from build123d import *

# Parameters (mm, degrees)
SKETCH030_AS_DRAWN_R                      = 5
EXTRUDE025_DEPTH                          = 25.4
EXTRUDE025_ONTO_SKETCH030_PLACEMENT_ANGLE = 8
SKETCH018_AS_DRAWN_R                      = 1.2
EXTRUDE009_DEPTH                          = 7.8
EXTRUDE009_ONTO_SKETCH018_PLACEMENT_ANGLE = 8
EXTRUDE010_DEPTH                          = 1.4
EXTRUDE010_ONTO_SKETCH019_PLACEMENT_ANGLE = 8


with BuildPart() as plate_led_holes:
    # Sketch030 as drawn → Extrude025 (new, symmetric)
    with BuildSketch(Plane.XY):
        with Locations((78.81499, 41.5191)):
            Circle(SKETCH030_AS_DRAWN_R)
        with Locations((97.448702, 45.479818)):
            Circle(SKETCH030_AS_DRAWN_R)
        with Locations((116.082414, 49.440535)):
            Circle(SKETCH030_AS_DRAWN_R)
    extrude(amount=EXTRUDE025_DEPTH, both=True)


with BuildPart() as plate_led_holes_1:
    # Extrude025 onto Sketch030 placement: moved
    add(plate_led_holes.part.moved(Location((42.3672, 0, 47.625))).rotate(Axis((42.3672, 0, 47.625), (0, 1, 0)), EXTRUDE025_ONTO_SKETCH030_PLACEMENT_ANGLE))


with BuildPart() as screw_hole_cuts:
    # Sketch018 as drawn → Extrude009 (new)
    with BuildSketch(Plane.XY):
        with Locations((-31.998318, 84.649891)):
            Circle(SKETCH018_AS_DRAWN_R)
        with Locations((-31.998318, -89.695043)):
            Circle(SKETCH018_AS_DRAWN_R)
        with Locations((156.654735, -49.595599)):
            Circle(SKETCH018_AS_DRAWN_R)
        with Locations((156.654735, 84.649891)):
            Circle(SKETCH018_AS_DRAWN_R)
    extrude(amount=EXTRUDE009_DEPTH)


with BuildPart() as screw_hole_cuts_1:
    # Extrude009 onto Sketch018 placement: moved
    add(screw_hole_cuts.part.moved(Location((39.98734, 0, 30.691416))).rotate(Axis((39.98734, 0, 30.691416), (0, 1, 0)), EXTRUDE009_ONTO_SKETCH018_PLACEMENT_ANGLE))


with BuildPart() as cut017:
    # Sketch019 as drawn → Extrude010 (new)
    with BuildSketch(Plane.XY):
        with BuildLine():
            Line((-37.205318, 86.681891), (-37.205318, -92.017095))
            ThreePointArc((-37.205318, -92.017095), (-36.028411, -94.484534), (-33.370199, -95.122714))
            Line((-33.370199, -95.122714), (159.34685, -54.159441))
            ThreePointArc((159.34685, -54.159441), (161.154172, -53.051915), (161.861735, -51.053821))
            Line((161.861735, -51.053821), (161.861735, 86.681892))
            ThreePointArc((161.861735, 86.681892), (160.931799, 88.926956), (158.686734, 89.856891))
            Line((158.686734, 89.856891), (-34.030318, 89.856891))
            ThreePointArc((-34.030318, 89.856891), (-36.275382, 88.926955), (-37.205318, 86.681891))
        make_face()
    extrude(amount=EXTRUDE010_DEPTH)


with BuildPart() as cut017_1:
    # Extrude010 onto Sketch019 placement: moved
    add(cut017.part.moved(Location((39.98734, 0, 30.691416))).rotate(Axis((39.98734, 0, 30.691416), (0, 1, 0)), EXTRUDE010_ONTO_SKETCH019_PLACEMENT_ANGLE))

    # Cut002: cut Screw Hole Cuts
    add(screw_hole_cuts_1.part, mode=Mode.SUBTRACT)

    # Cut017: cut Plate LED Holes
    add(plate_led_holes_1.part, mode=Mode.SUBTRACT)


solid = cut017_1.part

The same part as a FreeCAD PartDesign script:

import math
import FreeCAD as App
import Part
import Sketcher

V = App.Vector
Q = App.Units.Quantity

doc = App.newDocument("Part")
body = doc.addObject("PartDesign::Body", "Body")
body.AllowCompound = True

# Sketch on XY plane
sketch1 = body.newObject("Sketcher::SketchObject", "Sketch")
sketch1.AttachmentSupport = (doc.getObject("XY_Plane"), [""])
sketch1.MapMode = "FlatFace"
sketch1.addGeometry(Part.Circle(V(78.81499, 41.5191, 0), V(0, 0, 1), 5), False)
sketch1.addGeometry(Part.Circle(V(97.448702, 45.479818, 0), V(0, 0, 1), 5), False)
sketch1.addGeometry(Part.Circle(V(116.082414, 49.440535, 0), V(0, 0, 1), 5), False)
sketch1.addConstraint(Sketcher.Constraint("Equal", 0, 1))
sketch1.addConstraint(Sketcher.Constraint("Equal", 1, 2))
sketch1.addConstraint(Sketcher.Constraint("Diameter", 0, Q("10 mm")))
sketch1.addConstraint(Sketcher.Constraint("DistanceY", -1, 1, 0, 3, Q("41.5191 mm")))
sketch1.addConstraint(Sketcher.Constraint("DistanceX", -1, 1, 1, 3, Q("97.448702 mm")))
sketch1.addConstraint(Sketcher.Constraint("DistanceX", -1, 1, 0, 3, Q("78.81499 mm")))
sketch1.addConstraint(Sketcher.Constraint("DistanceY", -1, 1, 1, 3, Q("45.479818 mm")))
sketch1.addConstraint(Sketcher.Constraint("DistanceX", -1, 1, 2, 3, Q("116.082414 mm")))
sketch1.addConstraint(Sketcher.Constraint("DistanceY", -1, 1, 2, 3, Q("49.440535 mm")))
pad1 = body.newObject("PartDesign::Pad", "Pad")
pad1.Profile = sketch1
pad1.Length = 50.8
pad1.Midplane = True
body2 = doc.addObject("PartDesign::Body", "Body001")
body2.AllowCompound = True
doc.recompute()

body.Placement = App.Placement(V(42.3672, 0, 47.625), App.Rotation(V(0, 1, 0), 8))
boolean = body2.newObject("PartDesign::Boolean", "Boolean")
boolean.Type = "Fuse"
boolean.addObjects([body])
body3 = doc.addObject("PartDesign::Body", "Body002")
body3.AllowCompound = True

# Sketch on XY plane
sketch2 = body3.newObject("Sketcher::SketchObject", "Sketch001")
sketch2.AttachmentSupport = (doc.getObject("XY_Plane002"), [""])
sketch2.MapMode = "FlatFace"
sketch2.addGeometry(Part.Circle(V(-31.998318, 84.649891, 0), V(0, 0, 1), 1.2), False)
sketch2.addGeometry(Part.Circle(V(-31.998318, -89.695043, 0), V(0, 0, 1), 1.2), False)
sketch2.addGeometry(Part.Circle(V(156.654735, -49.595599, 0), V(0, 0, 1), 1.2), False)
sketch2.addGeometry(Part.Circle(V(156.654735, 84.649891, 0), V(0, 0, 1), 1.2), False)
sketch2.addConstraint(Sketcher.Constraint("Equal", 0, 1))
sketch2.addConstraint(Sketcher.Constraint("Equal", 1, 2))
sketch2.addConstraint(Sketcher.Constraint("Equal", 2, 3))
sketch2.addConstraint(Sketcher.Constraint("Horizontal", 0, 3, 3, 3))
sketch2.addConstraint(Sketcher.Constraint("Vertical", 0, 3, 1, 3))
sketch2.addConstraint(Sketcher.Constraint("Vertical", 2, 3, 3, 3))
sketch2.addConstraint(Sketcher.Constraint("Diameter", 0, Q("2.4 mm")))
sketch2.addConstraint(Sketcher.Constraint("DistanceY", 2, 3, -1, 1, Q("49.595599 mm")))
sketch2.addConstraint(Sketcher.Constraint("DistanceX", 0, 3, -1, 1, Q("31.998318 mm")))
sketch2.addConstraint(Sketcher.Constraint("DistanceY", -1, 1, 0, 3, Q("84.649891 mm")))
sketch2.addConstraint(Sketcher.Constraint("DistanceY", 1, 3, -1, 1, Q("89.695043 mm")))
sketch2.addConstraint(Sketcher.Constraint("DistanceX", -1, 1, 2, 3, Q("156.654735 mm")))
pad2 = body3.newObject("PartDesign::Pad", "Pad001")
pad2.Profile = sketch2
pad2.Length = 7.8
body4 = doc.addObject("PartDesign::Body", "Body003")
body4.AllowCompound = True
doc.recompute()

body3.Placement = App.Placement(V(39.98734, 0, 30.691416), App.Rotation(V(0, 1, 0), 8))
boolean2 = body4.newObject("PartDesign::Boolean", "Boolean001")
boolean2.Type = "Fuse"
boolean2.addObjects([body3])
body5 = doc.addObject("PartDesign::Body", "Body004")

# Sketch on XY plane
sketch3 = body5.newObject("Sketcher::SketchObject", "Sketch002")
sketch3.AttachmentSupport = (doc.getObject("XY_Plane004"), [""])
sketch3.MapMode = "FlatFace"
sketch3.addGeometry(Part.LineSegment(V(-37.205318, 86.681891, 0), V(-37.205318, -92.017095, 0)), False)
sketch3.addGeometry(Part.ArcOfCircle(Part.Circle(V(-34.030319, -92.017097, 0), V(0, 0, 1), 3.174999), math.radians(179.999968), math.radians(282.000017)), False)
sketch3.addGeometry(Part.LineSegment(V(-33.370199, -95.122714, 0), V(159.34685, -54.159441, 0)), False)
sketch3.addGeometry(Part.ArcOfCircle(Part.Circle(V(158.686734, -51.053821, 0), V(0, 0, 1), 3.175001), math.radians(-78.000073), math.radians(-0.000006)), False)
sketch3.addGeometry(Part.LineSegment(V(161.861735, -51.053821, 0), V(161.861735, 86.681892, 0)), False)
sketch3.addGeometry(Part.ArcOfCircle(Part.Circle(V(158.686737, 86.681893, 0), V(0, 0, 1), 3.174998), math.radians(-0.000011), math.radians(90.000047)), False)
sketch3.addGeometry(Part.LineSegment(V(158.686734, 89.856891, 0), V(-34.030318, 89.856891, 0)), False)
sketch3.addGeometry(Part.ArcOfCircle(Part.Circle(V(-34.030318, 86.681891, 0), V(0, 0, 1), 3.175), math.radians(90.000002), math.radians(179.999998)), False)
sketch3.addConstraint(Sketcher.Constraint("Tangent", 0, 2, 1, 1))
sketch3.addConstraint(Sketcher.Constraint("Tangent", 1, 2, 2, 1))
sketch3.addConstraint(Sketcher.Constraint("Tangent", 2, 2, 3, 1))
sketch3.addConstraint(Sketcher.Constraint("Tangent", 3, 2, 4, 1))
sketch3.addConstraint(Sketcher.Constraint("Tangent", 4, 2, 5, 1))
sketch3.addConstraint(Sketcher.Constraint("Tangent", 5, 2, 6, 1))
sketch3.addConstraint(Sketcher.Constraint("Tangent", 6, 2, 7, 1))
sketch3.addConstraint(Sketcher.Constraint("Tangent", 7, 2, 0, 1))
sketch3.addConstraint(Sketcher.Constraint("Vertical", 0))
sketch3.addConstraint(Sketcher.Constraint("Vertical", 4))
sketch3.addConstraint(Sketcher.Constraint("Horizontal", 6))
sketch3.addConstraint(Sketcher.Constraint("Equal", 1, 5))
sketch3.addConstraint(Sketcher.Constraint("Equal", 5, 7))
sketch3.addConstraint(Sketcher.Constraint("Vertical", 3, 3, 5, 2))
sketch3.addConstraint(Sketcher.Constraint("Angle", 2, Q("12 deg")))
sketch3.addConstraint(Sketcher.Constraint("Radius", 1, Q("3.174999 mm")))
sketch3.addConstraint(Sketcher.Constraint("DistanceX", 6, 2, 6, 1, Q("192.717052 mm")))
sketch3.addConstraint(Sketcher.Constraint("DistanceX", 1, 2, -1, 1, Q("33.370199 mm")))
sketch3.addConstraint(Sketcher.Constraint("DistanceY", 0, 2, 0, 1, Q("178.698986 mm")))
sketch3.addConstraint(Sketcher.Constraint("DistanceY", 3, 3, -1, 1, Q("51.053821 mm")))
pad3 = body5.newObject("PartDesign::Pad", "Pad002")
pad3.Profile = sketch3
pad3.Length = 1.4
body6 = doc.addObject("PartDesign::Body", "Body005")
doc.recompute()

body5.Placement = App.Placement(V(39.98734, 0, 30.691416), App.Rotation(V(0, 1, 0), 8))
boolean3 = body6.newObject("PartDesign::Boolean", "Boolean002")
boolean3.Type = "Fuse"
boolean3.addObjects([body5])
doc.recompute()

boolean4 = body6.newObject("PartDesign::Boolean", "Boolean003")
boolean4.Type = "Cut"
boolean4.addObjects([body4])
doc.recompute()

boolean5 = body6.newObject("PartDesign::Boolean", "Boolean004")
boolean5.Type = "Cut"
boolean5.addObjects([body2])

doc.recompute()
